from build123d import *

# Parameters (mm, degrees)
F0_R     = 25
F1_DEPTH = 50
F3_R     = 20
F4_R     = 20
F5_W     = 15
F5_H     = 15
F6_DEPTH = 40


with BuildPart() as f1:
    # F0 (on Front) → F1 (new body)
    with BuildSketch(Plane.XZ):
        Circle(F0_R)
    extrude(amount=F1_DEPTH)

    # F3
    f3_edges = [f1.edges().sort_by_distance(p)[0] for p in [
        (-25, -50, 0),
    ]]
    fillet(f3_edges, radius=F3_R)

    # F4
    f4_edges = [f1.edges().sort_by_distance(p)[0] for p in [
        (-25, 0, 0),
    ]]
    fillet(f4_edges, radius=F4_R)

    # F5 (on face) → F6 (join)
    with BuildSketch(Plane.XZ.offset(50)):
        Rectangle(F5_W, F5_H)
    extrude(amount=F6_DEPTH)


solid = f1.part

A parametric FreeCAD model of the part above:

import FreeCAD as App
import Part
import Sketcher

V = App.Vector
Q = App.Units.Quantity


def edges_at(feature, points):
    """Names of the edges that pass closest to the given points."""
    edges = feature.Shape.Edges
    near = lambda p: min(range(len(edges)), key=lambda i: edges[i].distToShape(Part.Vertex(*p))[0])
    return sorted({f"Edge{near(p) + 1}" for p in points})

doc = App.newDocument("Part")
body = doc.addObject("PartDesign::Body", "Body")

# Sketch on XZ plane
sketch1 = doc.addObject("Sketcher::SketchObject", "Sketch")
body.addObject(sketch1)
sketch1.AttachmentSupport = (doc.XZ_Plane, [""])
sketch1.MapMode = "FlatFace"
sketch1.addGeometry(Part.Circle(V(0, 0, 0), V(0, 0, 1), 25), False)
sketch1.addConstraint(Sketcher.Constraint("Coincident", 0, 3, -1, 1))
sketch1.addConstraint(Sketcher.Constraint("Diameter", 0, Q("50 mm")))
pad1 = doc.addObject("PartDesign::Pad", "Pad")
body.addObject(pad1)
pad1.Profile = sketch1
pad1.Length = 50
doc.recompute()

fillet = doc.addObject("PartDesign::Fillet", "Fillet")
body.addObject(fillet)
fillet.Base = (pad1, edges_at(pad1, [(-25, -50, 0)]))
fillet.Radius = 20
doc.recompute()

fillet2 = doc.addObject("PartDesign::Fillet", "Fillet001")
body.addObject(fillet2)
fillet2.Base = (fillet, edges_at(fillet, [(-25, 0, 0)]))
fillet2.Radius = 20

# Sketch on XZ plane
sketch2 = doc.addObject("Sketcher::SketchObject", "Sketch001")
body.addObject(sketch2)
sketch2.AttachmentSupport = (doc.XZ_Plane, [""])
sketch2.MapMode = "FlatFace"
sketch2.AttachmentOffset = App.Placement(V(0, 0, 50), App.Rotation())
sketch2.addGeometry(Part.LineSegment(V(-8, 8, 0), V(-8, -8, 0)), False)
sketch2.addGeometry(Part.LineSegment(V(-8, -8, 0), V(8, -8, 0)), False)
sketch2.addGeometry(Part.LineSegment(V(8, -8, 0), V(8, 8, 0)), False)
sketch2.addGeometry(Part.LineSegment(V(8, 8, 0), V(-8, 8, 0)), False)
sketch2.addConstraint(Sketcher.Constraint("Coincident", 0, 2, 1, 1))
sketch2.addConstraint(Sketcher.Constraint("Coincident", 1, 2, 2, 1))
sketch2.addConstraint(Sketcher.Constraint("Coincident", 2, 2, 3, 1))
sketch2.addConstraint(Sketcher.Constraint("Coincident", 3, 2, 0, 1))
sketch2.addConstraint(Sketcher.Constraint("Vertical", 0))
sketch2.addConstraint(Sketcher.Constraint("Horizontal", 1))
sketch2.addConstraint(Sketcher.Constraint("Vertical", 2))
sketch2.addConstraint(Sketcher.Constraint("Horizontal", 3))
sketch2.addConstraint(Sketcher.Constraint("Symmetric", 0, 2, 2, 2, -1, 1))
sketch2.addConstraint(Sketcher.Constraint("Equal", 3, 0))
sketch2.addConstraint(Sketcher.Constraint("DistanceX", 1, 1, 1, 2, Q("15 mm")))
pad2 = doc.addObject("PartDesign::Pad", "Pad001")
body.addObject(pad2)
pad2.Profile = sketch2
pad2.Length = 40

doc.recompute()
